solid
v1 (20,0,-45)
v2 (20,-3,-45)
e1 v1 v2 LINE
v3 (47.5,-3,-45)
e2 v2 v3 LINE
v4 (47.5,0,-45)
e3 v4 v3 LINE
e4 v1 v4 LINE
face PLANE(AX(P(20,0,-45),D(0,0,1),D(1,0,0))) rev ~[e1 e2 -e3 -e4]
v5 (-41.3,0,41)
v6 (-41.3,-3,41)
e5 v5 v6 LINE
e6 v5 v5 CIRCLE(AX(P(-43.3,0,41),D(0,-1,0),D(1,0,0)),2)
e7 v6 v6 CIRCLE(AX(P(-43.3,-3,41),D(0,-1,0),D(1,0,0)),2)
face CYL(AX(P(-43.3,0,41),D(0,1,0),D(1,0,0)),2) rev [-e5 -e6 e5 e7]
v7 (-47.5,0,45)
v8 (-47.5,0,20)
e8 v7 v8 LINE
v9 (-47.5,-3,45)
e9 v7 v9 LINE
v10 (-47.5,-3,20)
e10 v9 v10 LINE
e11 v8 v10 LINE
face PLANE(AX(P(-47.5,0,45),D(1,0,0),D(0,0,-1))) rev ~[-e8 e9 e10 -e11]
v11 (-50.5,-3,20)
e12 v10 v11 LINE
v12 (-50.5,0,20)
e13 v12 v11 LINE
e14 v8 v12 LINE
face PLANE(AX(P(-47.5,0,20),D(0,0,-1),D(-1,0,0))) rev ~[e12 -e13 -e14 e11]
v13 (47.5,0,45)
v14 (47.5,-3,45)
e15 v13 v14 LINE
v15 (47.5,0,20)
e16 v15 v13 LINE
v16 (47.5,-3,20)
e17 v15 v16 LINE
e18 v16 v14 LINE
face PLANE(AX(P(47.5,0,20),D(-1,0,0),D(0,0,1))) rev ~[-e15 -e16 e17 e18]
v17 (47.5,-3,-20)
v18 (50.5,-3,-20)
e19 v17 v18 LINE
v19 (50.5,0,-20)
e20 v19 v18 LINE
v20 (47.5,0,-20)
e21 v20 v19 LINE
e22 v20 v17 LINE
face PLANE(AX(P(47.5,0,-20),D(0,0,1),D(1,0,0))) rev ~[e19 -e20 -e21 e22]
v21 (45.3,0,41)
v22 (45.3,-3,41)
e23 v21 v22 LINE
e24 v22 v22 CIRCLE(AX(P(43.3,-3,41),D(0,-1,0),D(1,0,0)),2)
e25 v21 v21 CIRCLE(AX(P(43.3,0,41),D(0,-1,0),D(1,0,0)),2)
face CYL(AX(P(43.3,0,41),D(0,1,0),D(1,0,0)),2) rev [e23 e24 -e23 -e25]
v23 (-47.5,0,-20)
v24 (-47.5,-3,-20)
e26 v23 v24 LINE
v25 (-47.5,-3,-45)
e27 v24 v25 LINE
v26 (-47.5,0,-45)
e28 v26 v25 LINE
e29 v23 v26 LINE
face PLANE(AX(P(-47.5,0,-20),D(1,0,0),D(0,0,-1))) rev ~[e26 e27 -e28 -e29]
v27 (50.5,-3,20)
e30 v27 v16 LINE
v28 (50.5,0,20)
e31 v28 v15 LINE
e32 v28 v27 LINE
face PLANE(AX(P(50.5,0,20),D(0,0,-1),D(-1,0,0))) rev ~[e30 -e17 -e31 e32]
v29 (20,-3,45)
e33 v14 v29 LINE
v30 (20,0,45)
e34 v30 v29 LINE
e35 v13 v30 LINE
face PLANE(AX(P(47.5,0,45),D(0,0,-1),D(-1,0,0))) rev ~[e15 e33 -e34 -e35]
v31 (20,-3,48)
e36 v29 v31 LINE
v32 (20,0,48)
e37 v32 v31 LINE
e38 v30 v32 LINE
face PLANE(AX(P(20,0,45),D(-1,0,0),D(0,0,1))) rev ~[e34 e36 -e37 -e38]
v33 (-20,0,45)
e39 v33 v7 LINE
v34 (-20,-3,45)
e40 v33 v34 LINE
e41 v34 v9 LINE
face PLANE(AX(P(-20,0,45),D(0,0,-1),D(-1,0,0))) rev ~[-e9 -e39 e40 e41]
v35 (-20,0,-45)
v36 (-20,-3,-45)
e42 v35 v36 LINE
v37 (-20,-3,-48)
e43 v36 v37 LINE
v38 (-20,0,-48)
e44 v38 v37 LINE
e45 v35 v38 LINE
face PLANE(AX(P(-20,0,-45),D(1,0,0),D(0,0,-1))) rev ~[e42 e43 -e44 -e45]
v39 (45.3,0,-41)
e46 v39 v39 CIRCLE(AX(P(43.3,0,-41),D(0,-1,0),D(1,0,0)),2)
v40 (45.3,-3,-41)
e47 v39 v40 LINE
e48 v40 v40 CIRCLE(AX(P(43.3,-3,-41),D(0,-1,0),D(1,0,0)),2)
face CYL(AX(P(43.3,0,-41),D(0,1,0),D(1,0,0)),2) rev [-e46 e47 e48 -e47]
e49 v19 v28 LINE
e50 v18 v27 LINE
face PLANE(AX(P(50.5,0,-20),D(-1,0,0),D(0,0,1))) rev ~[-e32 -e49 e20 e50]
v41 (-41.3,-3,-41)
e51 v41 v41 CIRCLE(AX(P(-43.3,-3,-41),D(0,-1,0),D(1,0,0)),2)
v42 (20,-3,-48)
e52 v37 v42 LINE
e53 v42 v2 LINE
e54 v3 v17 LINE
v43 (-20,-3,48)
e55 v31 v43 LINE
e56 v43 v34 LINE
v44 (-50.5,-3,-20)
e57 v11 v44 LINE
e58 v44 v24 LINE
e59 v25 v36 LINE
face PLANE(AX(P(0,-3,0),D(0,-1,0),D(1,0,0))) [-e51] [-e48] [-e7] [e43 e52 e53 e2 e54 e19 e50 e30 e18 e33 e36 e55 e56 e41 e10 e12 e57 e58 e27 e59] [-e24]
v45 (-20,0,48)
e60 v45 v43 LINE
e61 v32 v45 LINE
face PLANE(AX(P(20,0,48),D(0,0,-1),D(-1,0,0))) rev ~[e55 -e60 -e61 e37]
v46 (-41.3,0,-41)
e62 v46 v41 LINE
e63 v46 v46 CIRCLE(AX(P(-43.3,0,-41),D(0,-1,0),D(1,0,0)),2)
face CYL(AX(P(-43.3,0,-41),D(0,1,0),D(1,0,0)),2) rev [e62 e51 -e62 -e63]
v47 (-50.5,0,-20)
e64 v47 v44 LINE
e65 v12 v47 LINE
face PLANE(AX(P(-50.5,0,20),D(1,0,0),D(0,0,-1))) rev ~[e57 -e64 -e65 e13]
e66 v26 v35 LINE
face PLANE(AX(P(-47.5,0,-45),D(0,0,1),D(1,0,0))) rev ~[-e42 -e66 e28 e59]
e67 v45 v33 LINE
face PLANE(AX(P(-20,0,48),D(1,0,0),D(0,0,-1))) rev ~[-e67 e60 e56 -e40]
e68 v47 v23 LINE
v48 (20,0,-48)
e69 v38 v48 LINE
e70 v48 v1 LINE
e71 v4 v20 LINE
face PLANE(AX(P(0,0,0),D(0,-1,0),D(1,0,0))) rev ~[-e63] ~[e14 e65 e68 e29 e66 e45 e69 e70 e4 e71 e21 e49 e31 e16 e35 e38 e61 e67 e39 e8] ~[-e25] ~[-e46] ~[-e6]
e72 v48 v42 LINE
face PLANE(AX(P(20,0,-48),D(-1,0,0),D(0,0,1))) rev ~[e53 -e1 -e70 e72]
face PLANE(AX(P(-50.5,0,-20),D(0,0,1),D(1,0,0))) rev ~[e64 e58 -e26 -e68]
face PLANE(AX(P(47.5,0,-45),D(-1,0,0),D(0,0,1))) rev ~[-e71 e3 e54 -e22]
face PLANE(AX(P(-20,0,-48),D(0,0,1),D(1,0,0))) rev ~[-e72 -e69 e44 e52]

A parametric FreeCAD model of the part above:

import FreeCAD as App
import Part
import Sketcher


def add_polygon(sketch, points):
    """Adds a closed chain of lines whose ends are joined by coincident constraints."""
    first, n = sketch.GeometryCount, len(points)
    for a, b in zip(points, points[1:] + points[:1]):
        sketch.addGeometry(Part.LineSegment(App.Vector(*a, 0), App.Vector(*b, 0)), False)
    for i in range(n):
        sketch.addConstraint(Sketcher.Constraint("Coincident", first + i, 2, first + (i + 1) % n, 1))

doc = App.newDocument("Part")
body = doc.addObject("PartDesign::Body", "Body")

# Sketch on XZ plane
sketch1 = doc.addObject("Sketcher::SketchObject", "Sketch")
body.addObject(sketch1)
sketch1.AttachmentSupport = (doc.XZ_Plane, [""])
sketch1.MapMode = "FlatFace"
add_polygon(sketch1, [(-50.5, 20), (-50.5, -20), (-47.5, -20), (-47.5, -45), (-20, -45), (-20, -48), (20, -48), (20, -45), (47.5, -45), (47.5, -20), (50.5, -20), (50.5, 20), (47.5, 20), (47.5, 45), (20, 45), (20, 48), (-20, 48), (-20, 45), (-47.5, 45), (-47.5, 20)])  # lines 0-19
sketch1.addGeometry(Part.Circle(App.Vector(-43.3, -41, 0), App.Vector(0, 0, 1), 2), False)  # 20
sketch1.addGeometry(Part.Circle(App.Vector(43.3, -41, 0), App.Vector(0, 0, 1), 2), False)  # 21
sketch1.addGeometry(Part.Circle(App.Vector(-43.3, 41, 0), App.Vector(0, 0, 1), 2), False)  # 22
sketch1.addGeometry(Part.Circle(App.Vector(43.3, 41, 0), App.Vector(0, 0, 1), 2), False)  # 23
sketch1.addConstraint([
    Sketcher.Constraint("Vertical", 0),
    Sketcher.Constraint("Horizontal", 1),
    Sketcher.Constraint("Vertical", 2),
    Sketcher.Constraint("Horizontal", 3),
    Sketcher.Constraint("Vertical", 4),
    Sketcher.Constraint("Horizontal", 5),
    Sketcher.Constraint("Vertical", 6),
    Sketcher.Constraint("Horizontal", 7),
    Sketcher.Constraint("Vertical", 8),
    Sketcher.Constraint("Horizontal", 9),
    Sketcher.Constraint("Vertical", 10),
    Sketcher.Constraint("Horizontal", 11),
    Sketcher.Constraint("Vertical", 12),
    Sketcher.Constraint("Horizontal", 13),
    Sketcher.Constraint("Vertical", 14),
    Sketcher.Constraint("Horizontal", 15),
    Sketcher.Constraint("Vertical", 16),
    Sketcher.Constraint("Horizontal", 17),
    Sketcher.Constraint("Vertical", 18),
    Sketcher.Constraint("Horizontal", 19),
    Sketcher.Constraint("Equal", 20, 21),
    Sketcher.Constraint("Equal", 21, 22),
    Sketcher.Constraint("Equal", 22, 23),
    Sketcher.Constraint("Symmetric", 21, 3, 22, 3, -1, 1),
    Sketcher.Constraint("Symmetric", 20, 3, 23, 3, -1, 1),
    Sketcher.Constraint("Symmetric", 0, 2, 10, 2, -1, 1),
    Sketcher.Constraint("Symmetric", 2, 2, 12, 2, -1, 1),
    Sketcher.Constraint("Symmetric", 4, 2, 14, 2, -1, 1),
    Sketcher.Constraint("Symmetric", 6, 2, 16, 2, -1, 1),
    Sketcher.Constraint("Symmetric", 8, 2, 18, 2, -1, 1),
    Sketcher.Constraint("Symmetric", 20, 3, 21, 3, -2),
    Sketcher.Constraint("Symmetric", 3, 2, 6, 2, -2),
    Sketcher.Constraint("Symmetric", 1, 2, 8, 2, -2),
    Sketcher.Constraint("Equal", 15, 0),
    Sketcher.Constraint("Equal", 19, 4),
    Sketcher.Constraint("Diameter", 20, 4.0),
    Sketcher.Constraint("DistanceX", 1, 1, 1, 2, 3.0),
    Sketcher.Constraint("DistanceX", 5, 1, 5, 2, 40.0),
    Sketcher.Constraint("DistanceY", 2, 2, 2, 1, 25.0),
    Sketcher.Constraint("DistanceX", 3, 1, 3, 2, 27.5),
    Sketcher.Constraint("DistanceY", 20, 3, -1, 1, 41.0),
    Sketcher.Constraint("DistanceX", 20, 3, -1, 1, 43.3),
])
pad1 = doc.addObject("PartDesign::Pad", "Pad")
body.addObject(pad1)
pad1.Profile = sketch1
pad1.Length = 3

doc.recompute()
